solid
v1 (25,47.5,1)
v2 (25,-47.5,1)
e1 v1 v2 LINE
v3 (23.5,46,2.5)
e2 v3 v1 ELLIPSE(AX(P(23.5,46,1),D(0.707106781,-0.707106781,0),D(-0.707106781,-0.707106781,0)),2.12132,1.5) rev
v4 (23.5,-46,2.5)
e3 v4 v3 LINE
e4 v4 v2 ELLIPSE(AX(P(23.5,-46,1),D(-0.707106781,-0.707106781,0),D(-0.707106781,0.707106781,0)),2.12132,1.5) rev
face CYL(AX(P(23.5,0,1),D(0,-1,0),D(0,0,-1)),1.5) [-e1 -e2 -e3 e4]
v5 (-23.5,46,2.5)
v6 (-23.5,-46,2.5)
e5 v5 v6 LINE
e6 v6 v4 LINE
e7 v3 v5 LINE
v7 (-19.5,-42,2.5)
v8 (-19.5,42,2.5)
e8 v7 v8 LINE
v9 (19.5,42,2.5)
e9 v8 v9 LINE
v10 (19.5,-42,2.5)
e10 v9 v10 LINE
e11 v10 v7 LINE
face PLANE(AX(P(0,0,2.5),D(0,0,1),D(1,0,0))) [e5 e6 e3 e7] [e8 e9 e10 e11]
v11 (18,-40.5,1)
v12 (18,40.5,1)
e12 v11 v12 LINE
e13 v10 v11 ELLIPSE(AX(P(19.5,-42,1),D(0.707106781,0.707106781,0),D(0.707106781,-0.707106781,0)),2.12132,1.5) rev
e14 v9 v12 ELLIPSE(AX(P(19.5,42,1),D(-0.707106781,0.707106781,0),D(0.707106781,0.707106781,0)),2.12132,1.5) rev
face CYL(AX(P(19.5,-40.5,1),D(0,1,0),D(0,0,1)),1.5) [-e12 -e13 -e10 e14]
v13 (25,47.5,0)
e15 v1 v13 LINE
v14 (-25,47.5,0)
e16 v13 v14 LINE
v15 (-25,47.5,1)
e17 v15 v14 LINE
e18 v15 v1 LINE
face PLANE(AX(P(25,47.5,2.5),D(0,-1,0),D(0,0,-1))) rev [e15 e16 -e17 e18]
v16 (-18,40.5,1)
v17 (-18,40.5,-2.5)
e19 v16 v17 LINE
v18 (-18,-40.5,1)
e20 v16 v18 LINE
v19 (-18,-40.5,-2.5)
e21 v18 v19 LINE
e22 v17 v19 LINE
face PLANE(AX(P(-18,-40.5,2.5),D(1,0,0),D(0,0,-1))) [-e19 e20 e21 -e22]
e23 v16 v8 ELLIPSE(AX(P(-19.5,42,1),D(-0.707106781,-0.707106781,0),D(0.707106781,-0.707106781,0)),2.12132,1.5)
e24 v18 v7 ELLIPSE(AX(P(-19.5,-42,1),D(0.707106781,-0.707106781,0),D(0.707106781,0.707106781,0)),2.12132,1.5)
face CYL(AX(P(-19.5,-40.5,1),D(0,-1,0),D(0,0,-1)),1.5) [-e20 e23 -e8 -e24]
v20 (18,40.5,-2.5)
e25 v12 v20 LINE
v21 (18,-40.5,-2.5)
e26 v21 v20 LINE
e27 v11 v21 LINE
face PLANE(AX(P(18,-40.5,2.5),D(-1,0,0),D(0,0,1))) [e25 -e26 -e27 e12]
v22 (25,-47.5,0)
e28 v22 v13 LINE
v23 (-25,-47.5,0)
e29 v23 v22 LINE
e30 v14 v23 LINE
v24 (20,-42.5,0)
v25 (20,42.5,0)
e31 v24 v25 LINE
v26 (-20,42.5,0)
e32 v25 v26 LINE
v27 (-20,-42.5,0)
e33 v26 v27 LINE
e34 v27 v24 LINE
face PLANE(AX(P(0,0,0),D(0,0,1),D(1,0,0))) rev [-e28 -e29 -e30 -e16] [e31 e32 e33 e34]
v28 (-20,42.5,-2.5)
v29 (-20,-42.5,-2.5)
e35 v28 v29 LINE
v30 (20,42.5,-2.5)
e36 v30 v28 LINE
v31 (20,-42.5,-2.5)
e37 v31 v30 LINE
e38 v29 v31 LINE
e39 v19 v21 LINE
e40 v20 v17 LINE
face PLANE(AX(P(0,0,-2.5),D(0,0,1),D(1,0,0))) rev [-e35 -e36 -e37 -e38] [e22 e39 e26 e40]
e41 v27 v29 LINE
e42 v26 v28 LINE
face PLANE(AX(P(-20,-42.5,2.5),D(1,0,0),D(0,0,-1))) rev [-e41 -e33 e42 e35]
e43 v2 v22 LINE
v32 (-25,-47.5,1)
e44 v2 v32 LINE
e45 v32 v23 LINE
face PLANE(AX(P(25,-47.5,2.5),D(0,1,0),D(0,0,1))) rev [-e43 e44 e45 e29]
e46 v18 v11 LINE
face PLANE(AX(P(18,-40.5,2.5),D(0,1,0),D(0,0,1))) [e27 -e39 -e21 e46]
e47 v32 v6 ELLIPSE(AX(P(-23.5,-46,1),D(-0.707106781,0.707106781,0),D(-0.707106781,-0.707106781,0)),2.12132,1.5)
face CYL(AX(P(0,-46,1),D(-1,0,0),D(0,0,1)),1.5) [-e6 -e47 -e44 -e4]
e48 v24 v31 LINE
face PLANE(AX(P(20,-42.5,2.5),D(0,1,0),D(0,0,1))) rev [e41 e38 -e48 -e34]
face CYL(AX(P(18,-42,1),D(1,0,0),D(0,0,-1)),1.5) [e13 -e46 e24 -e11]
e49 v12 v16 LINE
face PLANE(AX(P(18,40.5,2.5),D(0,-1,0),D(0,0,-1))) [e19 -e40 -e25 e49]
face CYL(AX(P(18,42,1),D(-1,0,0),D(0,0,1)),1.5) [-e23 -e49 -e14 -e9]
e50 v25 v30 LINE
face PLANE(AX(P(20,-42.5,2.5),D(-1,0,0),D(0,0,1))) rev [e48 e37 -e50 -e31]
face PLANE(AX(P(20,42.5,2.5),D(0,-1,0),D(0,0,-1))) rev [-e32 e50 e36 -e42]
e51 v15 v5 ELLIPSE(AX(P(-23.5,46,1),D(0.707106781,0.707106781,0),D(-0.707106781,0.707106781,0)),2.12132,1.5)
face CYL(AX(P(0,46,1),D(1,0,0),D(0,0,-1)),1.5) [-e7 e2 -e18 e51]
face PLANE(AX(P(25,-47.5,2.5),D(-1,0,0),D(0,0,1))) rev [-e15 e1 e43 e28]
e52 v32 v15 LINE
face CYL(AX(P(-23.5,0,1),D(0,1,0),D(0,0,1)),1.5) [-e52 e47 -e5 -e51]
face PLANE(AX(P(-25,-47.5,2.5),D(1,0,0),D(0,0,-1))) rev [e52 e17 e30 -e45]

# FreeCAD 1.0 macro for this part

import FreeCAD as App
import Part
import Sketcher
from FreeCAD import Vector


def edges_at(feature, points):
    """Names of the edges that pass closest to the given points."""
    edges = feature.Shape.Edges
    near = lambda p: min(range(len(edges)), key=lambda i: edges[i].distToShape(Part.Vertex(*p))[0])
    return sorted({f"Edge{near(p) + 1}" for p in points})


def add_polygon(sketch, points):
    """Adds a closed chain of lines whose ends are joined by coincident constraints."""
    first, n = sketch.GeometryCount, len(points)
    for a, b in zip(points, points[1:] + points[:1]):
        sketch.addGeometry(Part.LineSegment(App.Vector(*a, 0), App.Vector(*b, 0)), False)
    for i in range(n):
        sketch.addConstraint(Sketcher.Constraint("Coincident", first + i, 2, first + (i + 1) % n, 1))

doc = App.newDocument("Part")
body = doc.addObject("PartDesign::Body", "Body")

# Sketch on XY plane
sketch1 = doc.addObject("Sketcher::SketchObject", "Sketch")
body.addObject(sketch1)
sketch1.AttachmentSupport = (doc.XY_Plane, [""])
sketch1.MapMode = "FlatFace"
add_polygon(sketch1, [(-20, 42.5), (-20, -42.5), (20, -42.5), (20, 42.5)])  # lines 0-3
add_polygon(sketch1, [(18, -40.5), (-18, -40.5), (-18, 40.5), (18, 40.5)])  # lines 4-7
sketch1.addConstraint([
    Sketcher.Constraint("Vertical", 0),
    Sketcher.Constraint("Horizontal", 1),
    Sketcher.Constraint("Vertical", 2),
    Sketcher.Constraint("Horizontal", 3),
    Sketcher.Constraint("Horizontal", 4),
    Sketcher.Constraint("Vertical", 5),
    Sketcher.Constraint("Horizontal", 6),
    Sketcher.Constraint("Vertical", 7),
    Sketcher.Constraint("Symmetric", 0, 2, 2, 2, -1, 1),
    Sketcher.Constraint("Symmetric", 4, 2, 6, 2, -1, 1),
    Sketcher.Constraint("DistanceX", 1, 1, 1, 2, 40.0),
    Sketcher.Constraint("DistanceX", 4, 2, 4, 1, 36.0),
    Sketcher.Constraint("DistanceY", 0, 2, 0, 1, 85.0),
    Sketcher.Constraint("DistanceY", 5, 1, 5, 2, 81.0),
])
pad1 = doc.addObject("PartDesign::Pad", "Pad")
body.addObject(pad1)
pad1.Profile = sketch1
pad1.Length = 5
pad1.Midplane = True

# Sketch on XY plane
sketch2 = doc.addObject("Sketcher::SketchObject", "Sketch001")
body.addObject(sketch2)
sketch2.AttachmentSupport = (doc.XY_Plane, [""])
sketch2.MapMode = "FlatFace"
add_polygon(sketch2, [(-25, 47.5), (-25, -47.5), (25, -47.5), (25, 47.5)])  # lines 0-3
add_polygon(sketch2, [(20, -42.5), (-20, -42.5), (-20, 42.5), (20, 42.5)])  # lines 4-7
sketch2.addConstraint([
    Sketcher.Constraint("Vertical", 0),
    Sketcher.Constraint("Horizontal", 1),
    Sketcher.Constraint("Vertical", 2),
    Sketcher.Constraint("Horizontal", 3),
    Sketcher.Constraint("Horizontal", 4),
    Sketcher.Constraint("Vertical", 5),
    Sketcher.Constraint("Horizontal", 6),
    Sketcher.Constraint("Vertical", 7),
    Sketcher.Constraint("Symmetric", 0, 2, 2, 2, -1, 1),
    Sketcher.Constraint("Symmetric", 4, 2, 6, 2, -1, 1),
    Sketcher.Constraint("DistanceX", 1, 1, 1, 2, 50.0),
    Sketcher.Constraint("DistanceX", 4, 2, 4, 1, 40.0),
    Sketcher.Constraint("DistanceY", 0, 2, 0, 1, 95.0),
    Sketcher.Constraint("DistanceY", 5, 1, 5, 2, 85.0),
])
pad2 = doc.addObject("PartDesign::Pad", "Pad001")
body.addObject(pad2)
pad2.Profile = sketch2
pad2.Length = 2.5
doc.recompute()

fillet = doc.addObject("PartDesign::Fillet", "Fillet")
body.addObject(fillet)
fillet.Base = (pad2, edges_at(pad2, [
    (-18, 0, 2.5),
    (0, -40.5, 2.5),
    (18, 0, 2.5),
    (0, 40.5, 2.5),
    (-25, 0, 2.5),
    (0, -47.5, 2.5),
    (25, 0, 2.5),
    (0, 47.5, 2.5),
]))
fillet.Radius = 1.5

doc.recompute()
